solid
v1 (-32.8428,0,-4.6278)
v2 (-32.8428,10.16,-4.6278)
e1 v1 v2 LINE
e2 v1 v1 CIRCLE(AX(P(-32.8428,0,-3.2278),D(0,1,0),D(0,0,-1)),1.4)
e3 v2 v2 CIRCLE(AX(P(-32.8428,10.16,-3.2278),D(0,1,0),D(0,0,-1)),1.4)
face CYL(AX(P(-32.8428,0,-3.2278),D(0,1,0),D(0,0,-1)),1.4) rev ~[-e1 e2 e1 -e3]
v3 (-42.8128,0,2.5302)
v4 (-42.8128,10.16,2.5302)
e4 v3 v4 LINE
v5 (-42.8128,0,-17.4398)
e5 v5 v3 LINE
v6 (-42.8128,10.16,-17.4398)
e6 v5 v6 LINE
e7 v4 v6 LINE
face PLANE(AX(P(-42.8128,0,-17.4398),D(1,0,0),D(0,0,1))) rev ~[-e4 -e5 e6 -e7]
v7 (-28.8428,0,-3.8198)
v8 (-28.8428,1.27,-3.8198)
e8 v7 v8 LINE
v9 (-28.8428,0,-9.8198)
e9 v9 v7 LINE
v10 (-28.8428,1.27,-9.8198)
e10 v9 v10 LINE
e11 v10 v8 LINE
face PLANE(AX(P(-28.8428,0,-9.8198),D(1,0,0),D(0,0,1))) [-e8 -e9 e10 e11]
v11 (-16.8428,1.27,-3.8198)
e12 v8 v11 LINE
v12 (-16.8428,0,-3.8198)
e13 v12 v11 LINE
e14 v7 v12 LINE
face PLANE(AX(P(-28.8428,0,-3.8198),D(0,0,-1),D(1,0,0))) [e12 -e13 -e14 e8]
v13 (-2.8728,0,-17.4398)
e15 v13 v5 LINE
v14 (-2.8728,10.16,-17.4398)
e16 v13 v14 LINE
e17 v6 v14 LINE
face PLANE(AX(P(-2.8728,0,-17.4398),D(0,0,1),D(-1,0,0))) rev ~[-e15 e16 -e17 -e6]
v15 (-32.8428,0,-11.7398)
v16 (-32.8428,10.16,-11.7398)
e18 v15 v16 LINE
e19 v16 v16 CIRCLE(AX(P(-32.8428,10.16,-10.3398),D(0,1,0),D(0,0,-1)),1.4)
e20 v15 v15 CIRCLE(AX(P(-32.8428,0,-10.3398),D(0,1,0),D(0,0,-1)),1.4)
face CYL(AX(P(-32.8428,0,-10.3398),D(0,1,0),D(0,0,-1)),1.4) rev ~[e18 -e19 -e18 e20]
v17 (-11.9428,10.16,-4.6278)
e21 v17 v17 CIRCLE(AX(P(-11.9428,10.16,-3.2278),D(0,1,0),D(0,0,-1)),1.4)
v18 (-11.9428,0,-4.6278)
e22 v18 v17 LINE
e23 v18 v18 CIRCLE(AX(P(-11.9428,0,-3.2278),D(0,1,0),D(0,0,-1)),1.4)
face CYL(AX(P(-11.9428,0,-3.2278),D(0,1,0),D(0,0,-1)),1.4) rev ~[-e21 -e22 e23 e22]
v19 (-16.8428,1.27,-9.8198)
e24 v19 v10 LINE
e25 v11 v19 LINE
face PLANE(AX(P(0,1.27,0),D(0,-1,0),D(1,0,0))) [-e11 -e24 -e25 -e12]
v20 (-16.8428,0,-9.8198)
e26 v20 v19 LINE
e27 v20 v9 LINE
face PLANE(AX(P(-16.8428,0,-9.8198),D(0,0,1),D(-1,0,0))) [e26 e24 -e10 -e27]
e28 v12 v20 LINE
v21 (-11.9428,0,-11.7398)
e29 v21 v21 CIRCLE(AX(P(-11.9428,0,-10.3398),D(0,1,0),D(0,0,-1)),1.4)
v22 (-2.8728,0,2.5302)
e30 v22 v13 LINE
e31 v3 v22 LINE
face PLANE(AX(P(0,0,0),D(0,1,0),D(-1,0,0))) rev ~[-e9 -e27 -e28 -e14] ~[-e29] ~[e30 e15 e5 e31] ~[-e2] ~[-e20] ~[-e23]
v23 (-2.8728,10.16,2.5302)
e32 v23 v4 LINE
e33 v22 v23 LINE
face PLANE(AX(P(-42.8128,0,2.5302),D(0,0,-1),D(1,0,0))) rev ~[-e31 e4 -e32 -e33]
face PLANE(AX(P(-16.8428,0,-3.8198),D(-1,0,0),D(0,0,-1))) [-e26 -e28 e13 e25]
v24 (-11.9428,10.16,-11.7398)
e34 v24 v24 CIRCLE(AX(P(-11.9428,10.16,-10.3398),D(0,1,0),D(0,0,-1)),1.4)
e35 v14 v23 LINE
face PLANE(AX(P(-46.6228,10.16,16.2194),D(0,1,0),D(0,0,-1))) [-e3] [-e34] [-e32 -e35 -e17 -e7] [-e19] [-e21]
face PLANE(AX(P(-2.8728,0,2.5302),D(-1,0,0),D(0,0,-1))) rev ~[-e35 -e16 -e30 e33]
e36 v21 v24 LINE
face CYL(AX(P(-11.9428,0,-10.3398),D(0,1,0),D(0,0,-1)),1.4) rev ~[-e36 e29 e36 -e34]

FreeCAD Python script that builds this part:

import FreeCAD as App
import Part
import Sketcher
Q = App.Units.Quantity


def add_polygon(sketch, points):
    """Adds a closed chain of lines whose ends are joined by coincident constraints."""
    first, n = sketch.GeometryCount, len(points)
    for a, b in zip(points, points[1:] + points[:1]):
        sketch.addGeometry(Part.LineSegment(App.Vector(*a, 0), App.Vector(*b, 0)), False)
    for i in range(n):
        sketch.addConstraint(Sketcher.Constraint("Coincident", first + i, 2, first + (i + 1) % n, 1))

doc = App.newDocument("Part")
body = doc.addObject("PartDesign::Body", "Body")

# Sketch on XZ plane
sketch1 = body.newObject("Sketcher::SketchObject", "Sketch")
sketch1.AttachmentSupport = (doc.getObject("XZ_Plane"), [""])
sketch1.MapMode = "FlatFace"
add_polygon(sketch1, [(-47, -54), (-47, 35), (74, 35), (74, -54)])  # lines 0-3
sketch1.addConstraint(Sketcher.Constraint("Vertical", 0))
sketch1.addConstraint(Sketcher.Constraint("Horizontal", 1))
sketch1.addConstraint(Sketcher.Constraint("Vertical", 2))
sketch1.addConstraint(Sketcher.Constraint("Horizontal", 3))
sketch1.addConstraint(Sketcher.Constraint("DistanceY", 0, 1, 0, 2, Q("3.5 in")))
sketch1.addConstraint(Sketcher.Constraint("DistanceX", 1, 1, 1, 2, Q("4.75 in")))
sketch1.addConstraint(Sketcher.Constraint("DistanceY", -1, 1, 0, 2, Q("1.3634 in")))
sketch1.addConstraint(Sketcher.Constraint("DistanceX", 0, 2, -1, 1, 46.6228))
pad1 = body.newObject("PartDesign::Pad", "Pad")
pad1.Profile = sketch1
pad1.Length = Q("0.5 in")
pad1.Reversed = True

# Sketch on XZ plane
sketch2 = body.newObject("Sketcher::SketchObject", "Sketch001")
sketch2.AttachmentSupport = (doc.getObject("XZ_Plane"), [""])
sketch2.MapMode = "FlatFace"
sketch2.AttachmentOffset = App.Placement(App.Vector(0, 0, -0.5 * 25.4), App.Rotation())
sketch2.addGeometry(Part.Circle(App.Vector(6.7, 29.6, 0), App.Vector(0, 0, 1), 2.4), False)
sketch2.addGeometry(Part.Circle(App.Vector(51.2, 29.6, 0), App.Vector(0, 0, 1), 2.4), False)
sketch2.addConstraint(Sketcher.Constraint("Equal", 0, 1))
sketch2.addConstraint(Sketcher.Constraint("Horizontal", 0, 3, 1, 3))
sketch2.addConstraint(Sketcher.Constraint("Diameter", 0, Q("0.19 in")))
sketch2.addConstraint(Sketcher.Constraint("DistanceX", 0, 3, 1, 3, Q("1.75 in")))
sketch2.addConstraint(Sketcher.Constraint("DistanceY", -1, 1, 0, 3, Q("1.1634 in")))
sketch2.addConstraint(Sketcher.Constraint("DistanceX", -1, 1, 0, 3, 6.7172))
doc.recompute()
hole = body.newObject("PartDesign::Hole", "Hole")
hole.Profile = sketch2
hole.ThreadType = "None"
hole.Diameter = Q("0.19 in")
hole.DepthType = "Dimension"
hole.Depth = Q("1 in")
hole.DrillPoint = "Angled"
hole.DrillPointAngle = 118
hole.HoleCutType = "Countersink"
hole.HoleCutDiameter = Q("0.375 in")
hole.HoleCutCountersinkAngle = 82
hole.Reversed = True

# Sketch on XZ plane
sketch3 = body.newObject("Sketcher::SketchObject", "Sketch002")
sketch3.AttachmentSupport = (doc.getObject("XZ_Plane"), [""])
sketch3.MapMode = "FlatFace"
sketch3.AttachmentOffset = App.Placement(App.Vector(0, 0, -0.5 * 25.4), App.Rotation())
sketch3.addGeometry(Part.Circle(App.Vector(6.7, -14.3, 0), App.Vector(0, 0, 1), 2.4), False)
sketch3.addGeometry(Part.Circle(App.Vector(51.2, -14.3, 0), App.Vector(0, 0, 1), 2.4), False)
sketch3.addConstraint(Sketcher.Constraint("Equal", 0, 1))
sketch3.addConstraint(Sketcher.Constraint("Horizontal", 0, 3, 1, 3))
sketch3.addConstraint(Sketcher.Constraint("Diameter", 0, Q("0.19 in")))
sketch3.addConstraint(Sketcher.Constraint("DistanceX", 0, 3, 1, 3, Q("1.75 in")))
sketch3.addConstraint(Sketcher.Constraint("DistanceY", 0, 3, -1, 1, Q("0.5616 in")))
sketch3.addConstraint(Sketcher.Constraint("DistanceX", -1, 1, 0, 3, 6.7172))
doc.recompute()
hole2 = body.newObject("PartDesign::Hole", "Hole001")
hole2.Profile = sketch3
hole2.ThreadType = "None"
hole2.Diameter = Q("0.19 in")
hole2.DepthType = "ThroughAll"
hole2.HoleCutType = "Countersink"
hole2.HoleCutDiameter = Q("0.375 in")
hole2.HoleCutCountersinkAngle = 82
hole2.Reversed = True

# Sketch on XZ plane
sketch4 = body.newObject("Sketcher::SketchObject", "Sketch003")
sketch4.AttachmentSupport = (doc.getObject("XZ_Plane"), [""])
sketch4.MapMode = "FlatFace"
add_polygon(sketch4, [(-17, 29), (-29, 29), (-29, 23), (-17, 23)])  # lines 0-3
add_polygon(sketch4, [(-17, -4), (-29, -4), (-29, -10), (-17, -10)])  # lines 4-7
sketch4.addConstraint(Sketcher.Constraint("Horizontal", 0))
sketch4.addConstraint(Sketcher.Constraint("Vertical", 1))
sketch4.addConstraint(Sketcher.Constraint("Horizontal", 2))
sketch4.addConstraint(Sketcher.Constraint("Vertical", 3))
sketch4.addConstraint(Sketcher.Constraint("Horizontal", 4))
sketch4.addConstraint(Sketcher.Constraint("Vertical", 5))
sketch4.addConstraint(Sketcher.Constraint("Horizontal", 6))
sketch4.addConstraint(Sketcher.Constraint("Vertical", 7))
sketch4.addConstraint(Sketcher.Constraint("Vertical", 1, 2, 4, 2))
sketch4.addConstraint(Sketcher.Constraint("Vertical", 3, 2, 6, 2))
sketch4.addConstraint(Sketcher.Constraint("Equal", 3, 5))
sketch4.addConstraint(Sketcher.Constraint("DistanceY", 1, 2, 1, 1, 6.0))
sketch4.addConstraint(Sketcher.Constraint("DistanceY", 4, 2, 0, 2, Q("1.3 in")))
sketch4.addConstraint(Sketcher.Constraint("DistanceX", 0, 2, 0, 1, 12.0))
sketch4.addConstraint(Sketcher.Constraint("DistanceY", -1, 1, 1, 2, Q("0.9134 in")))
sketch4.addConstraint(Sketcher.Constraint("DistanceX", 2, 2, -1, 1, Q("0.6631 in")))
pocket1 = body.newObject("PartDesign::Pocket", "Pocket")
pocket1.Profile = sketch4
pocket1.Length = Q("0.05 in")

# Sketch on XZ plane
sketch5 = body.newObject("Sketcher::SketchObject", "Sketch004")
sketch5.AttachmentSupport = (doc.getObject("XZ_Plane"), [""])
sketch5.MapMode = "FlatFace"
sketch5.addGeometry(Part.Circle(App.Vector(-32.8, -10.3, 0), App.Vector(0, 0, 1), 1.4), False)
sketch5.addGeometry(Part.Circle(App.Vector(-32.8, -3.2, 0), App.Vector(0, 0, 1), 1.4), False)
sketch5.addGeometry(Part.Circle(App.Vector(-32.8, 22.9, 0), App.Vector(0, 0, 1), 1.4), False)
sketch5.addGeometry(Part.Circle(App.Vector(-32.8, 30.1, 0), App.Vector(0, 0, 1), 1.4), False)
sketch5.addGeometry(Part.Circle(App.Vector(-11.9, -10.3, 0), App.Vector(0, 0, 1), 1.4), False)
sketch5.addGeometry(Part.Circle(App.Vector(-11.9, -3.2, 0), App.Vector(0, 0, 1), 1.4), False)
sketch5.addGeometry(Part.Circle(App.Vector(-11.9, 22.9, 0), App.Vector(0, 0, 1), 1.4), False)
sketch5.addGeometry(Part.Circle(App.Vector(-11.9, 30.1, 0), App.Vector(0, 0, 1), 1.4), False)
sketch5.addConstraint(Sketcher.Constraint("Equal", 0, 1))
sketch5.addConstraint(Sketcher.Constraint("Equal", 1, 2))
sketch5.addConstraint(Sketcher.Constraint("Equal", 2, 3))
sketch5.addConstraint(Sketcher.Constraint("Equal", 3, 4))
sketch5.addConstraint(Sketcher.Constraint("Equal", 4, 5))
sketch5.addConstraint(Sketcher.Constraint("Equal", 5, 6))
sketch5.addConstraint(Sketcher.Constraint("Equal", 6, 7))
sketch5.addConstraint(Sketcher.Constraint("Horizontal", 0, 3, 4, 3))
sketch5.addConstraint(Sketcher.Constraint("Horizontal", 1, 3, 5, 3))
sketch5.addConstraint(Sketcher.Constraint("Horizontal", 2, 3, 6, 3))
sketch5.addConstraint(Sketcher.Constraint("Horizontal", 3, 3, 7, 3))
sketch5.addConstraint(Sketcher.Constraint("Vertical", 0, 3, 1, 3))
sketch5.addConstraint(Sketcher.Constraint("Vertical", 1, 3, 2, 3))
sketch5.addConstraint(Sketcher.Constraint("Vertical", 2, 3, 3, 3))
sketch5.addConstraint(Sketcher.Constraint("Vertical", 4, 3, 5, 3))
sketch5.addConstraint(Sketcher.Constraint("Vertical", 5, 3, 6, 3))
sketch5.addConstraint(Sketcher.Constraint("Vertical", 6, 3, 7, 3))
sketch5.addConstraint(Sketcher.Constraint("Diameter", 0, 2.8))
sketch5.addConstraint(Sketcher.Constraint("DistanceY", 0, 3, 1, 3, Q("0.28 in")))
sketch5.addConstraint(Sketcher.Constraint("DistanceY", 2, 3, 3, 3, Q("0.28 in")))
sketch5.addConstraint(Sketcher.Constraint("DistanceY", -1, 1, 2, 3, Q("0.9034 in")))
sketch5.addConstraint(Sketcher.Constraint("DistanceX", 4, 3, -1, 1, Q("0.4702 in")))
sketch5.addConstraint(Sketcher.Constraint("DistanceX", 0, 3, -1, 1, 32.8428))
sketch5.addConstraint(Sketcher.Constraint("DistanceY", 0, 3, -1, 1, 10.3398))
doc.recompute()
hole3 = body.newObject("PartDesign::Hole", "Hole002")
hole3.Profile = sketch5
hole3.ThreadType = "None"
hole3.Diameter = 2.8
hole3.DepthType = "ThroughAll"

# Sketch on XZ plane
sketch6 = body.newObject("Sketcher::SketchObject", "Sketch005")
sketch6.AttachmentSupport = (doc.getObject("XZ_Plane"), [""])
sketch6.MapMode = "FlatFace"
sketch6.AttachmentOffset = App.Placement(App.Vector(0, 0, -0.5 * 25.4), App.Rotation())
sketch6.addGeometry(Part.Circle(App.Vector(6.7, -14.3, 0), App.Vector(0, 0, 1), 3.4), False)
sketch6.addGeometry(Part.Circle(App.Vector(6.7, -14.3, 0), App.Vector(0, 0, 1), 2.4), False)
sketch6.addGeometry(Part.Circle(App.Vector(6.7, 29.6, 0), App.Vector(0, 0, 1), 3.4), False)
sketch6.addGeometry(Part.Circle(App.Vector(6.7, 29.6, 0), App.Vector(0, 0, 1), 2.4), False)
sketch6.addGeometry(Part.Circle(App.Vector(51.2, 29.6, 0), App.Vector(0, 0, 1), 3.4), False)
sketch6.addGeometry(Part.Circle(App.Vector(51.2, 29.6, 0), App.Vector(0, 0, 1), 2.4), False)
sketch6.addGeometry(Part.Circle(App.Vector(51.2, -14.3, 0), App.Vector(0, 0, 1), 3.4), False)
sketch6.addGeometry(Part.Circle(App.Vector(51.2, -14.3, 0), App.Vector(0, 0, 1), 2.4), False)
sketch6.addConstraint(Sketcher.Constraint("Coincident", 1, 3, 0, 3))
sketch6.addConstraint(Sketcher.Constraint("Coincident", 3, 3, 2, 3))
sketch6.addConstraint(Sketcher.Constraint("Coincident", 5, 3, 4, 3))
sketch6.addConstraint(Sketcher.Constraint("Coincident", 7, 3, 6, 3))
sketch6.addConstraint(Sketcher.Constraint("Equal", 0, 2))
sketch6.addConstraint(Sketcher.Constraint("Equal", 1, 3))
sketch6.addConstraint(Sketcher.Constraint("Equal", 2, 4))
sketch6.addConstraint(Sketcher.Constraint("Equal", 3, 5))
sketch6.addConstraint(Sketcher.Constraint("Equal", 4, 6))
sketch6.addConstraint(Sketcher.Constraint("Equal", 5, 7))
sketch6.addConstraint(Sketcher.Constraint("Horizontal", 3, 3, 4, 3))
sketch6.addConstraint(Sketcher.Constraint("Horizontal", 1, 3, 6, 3))
sketch6.addConstraint(Sketcher.Constraint("Vertical", 1, 3, 2, 3))
sketch6.addConstraint(Sketcher.Constraint("Vertical", 5, 3, 6, 3))
sketch6.addConstraint(Sketcher.Constraint("Diameter", 0, Q("0.265622 in")))
sketch6.addConstraint(Sketcher.Constraint("Diameter", 1, Q("0.19 in")))
sketch6.addConstraint(Sketcher.Constraint("DistanceX", 2, 3, 4, 3, Q("1.75 in")))
sketch6.addConstraint(Sketcher.Constraint("DistanceY", 0, 3, 2, 3, Q("1.725 in")))
sketch6.addConstraint(Sketcher.Constraint("DistanceY", 0, 3, -1, 1, Q("0.5616 in")))
sketch6.addConstraint(Sketcher.Constraint("DistanceX", -1, 1, 0, 3, 6.7172))
pocket2 = body.newObject("PartDesign::Pocket", "Pocket001")
pocket2.Profile = sketch6
pocket2.Length = Q("0.35 in")
pocket2.Reversed = True

# Sketch on XZ plane
sketch7 = body.newObject("Sketcher::SketchObject", "Sketch006")
sketch7.AttachmentSupport = (doc.getObject("XZ_Plane"), [""])
sketch7.MapMode = "FlatFace"
add_polygon(sketch7, [(91, -21), (-64, -21), (-64, -73), (91, -73)])  # lines 0-3
sketch7.addConstraint(Sketcher.Constraint("Horizontal", 0))
sketch7.addConstraint(Sketcher.Constraint("Vertical", 1))
sketch7.addConstraint(Sketcher.Constraint("Horizontal", 2))
sketch7.addConstraint(Sketcher.Constraint("Vertical", 3))
sketch7.addConstraint(Sketcher.Constraint("DistanceY", 1, 2, 1, 1, Q("2.0344 in")))
sketch7.addConstraint(Sketcher.Constraint("DistanceY", 1, 2, -1, 1, Q("2.871 in")))
sketch7.addConstraint(Sketcher.Constraint("DistanceX", 0, 2, 0, 1, 155.5678))
sketch7.addConstraint(Sketcher.Constraint("DistanceX", 0, 2, -1, 1, Q("2.5387 in")))
pocket3 = body.newObject("PartDesign::Pocket", "Pocket002")
pocket3.Profile = sketch7
pocket3.Length = Q("1 in")

# Sketch on XZ plane
sketch8 = body.newObject("Sketcher::SketchObject", "Sketch007")
sketch8.AttachmentSupport = (doc.getObject("XZ_Plane"), [""])
sketch8.MapMode = "FlatFace"
sketch8.AttachmentOffset = App.Placement(App.Vector(0, 0, -0.5 * 25.4), App.Rotation())
add_polygon(sketch8, [(85, -35), (1, -35), (1, 6), (-61, 6), (-61, 40), (1, 40), (1, 45), (85, 45)])  # lines 0-7
sketch8.addConstraint(Sketcher.Constraint("Horizontal", 0))
sketch8.addConstraint(Sketcher.Constraint("Vertical", 1))
sketch8.addConstraint(Sketcher.Constraint("Horizontal", 2))
sketch8.addConstraint(Sketcher.Constraint("Vertical", 3))
sketch8.addConstraint(Sketcher.Constraint("Horizontal", 4))
sketch8.addConstraint(Sketcher.Constraint("Vertical", 5))
sketch8.addConstraint(Sketcher.Constraint("Horizontal", 6))
sketch8.addConstraint(Sketcher.Constraint("Vertical", 7))
sketch8.addConstraint(Sketcher.Constraint("Vertical", 1, 2, 4, 2))
sketch8.addConstraint(Sketcher.Constraint("DistanceX", 2, 2, 2, 1, Q("2.4201 in")))
sketch8.addConstraint(Sketcher.Constraint("DistanceX", 0, 2, 0, 1, 83.7023))
sketch8.addConstraint(Sketcher.Constraint("DistanceY", 1, 1, 1, 2, 41.2297))
sketch8.addConstraint(Sketcher.Constraint("DistanceY", 3, 1, 3, 2, 33.4128))
sketch8.addConstraint(Sketcher.Constraint("DistanceY", 5, 1, 5, 2, 5.3362))
sketch8.addConstraint(Sketcher.Constraint("DistanceX", -1, 1, 0, 2, Q("0.0369 in")))
sketch8.addConstraint(Sketcher.Constraint("DistanceY", 0, 2, -1, 1, Q("1.3736 in")))
pocket4 = body.newObject("PartDesign::Pocket", "Pocket003")
pocket4.Profile = sketch8
pocket4.Length = Q("1 in")
pocket4.Reversed = True

# Sketch on YZ plane
sketch9 = body.newObject("Sketcher::SketchObject", "Sketch008")
sketch9.AttachmentSupport = (doc.getObject("YZ_Plane"), [""])
sketch9.MapMode = "FlatFace"
sketch9.AttachmentOffset = App.Placement(App.Vector(0, 0, -46.6228), App.Rotation())
add_polygon(sketch9, [(10, -39), (10, 16), (19, 16), (19, -39)])  # lines 0-3
sketch9.addConstraint(Sketcher.Constraint("Vertical", 0))
sketch9.addConstraint(Sketcher.Constraint("Horizontal", 1))
sketch9.addConstraint(Sketcher.Constraint("Vertical", 2))
sketch9.addConstraint(Sketcher.Constraint("Horizontal", 3))
sketch9.addConstraint(Sketcher.Constraint("DistanceX", -1, 1, 0, 2, Q("0.4 in")))
sketch9.addConstraint(Sketcher.Constraint("DistanceX", 1, 1, 1, 2, Q("0.3671 in")))
sketch9.addConstraint(Sketcher.Constraint("DistanceY", 0, 1, 0, 2, 55.579))
sketch9.addConstraint(Sketcher.Constraint("DistanceY", 2, 2, -1, 1, Q("1.5496 in")))
pocket5 = body.newObject("PartDesign::Pocket", "Pocket004")
pocket5.Profile = sketch9
pocket5.Length = Q("2.1875 in")
pocket5.Reversed = True

# Sketch on XZ plane
sketch10 = body.newObject("Sketcher::SketchObject", "Sketch009")
sketch10.AttachmentSupport = (doc.getObject("XZ_Plane"), [""])
sketch10.MapMode = "FlatFace"
add_polygon(sketch10, [(-47, -21), (1, -21), (1, 6), (-47, 6)])  # lines 0-3
add_polygon(sketch10, [(-43, -17), (-43, 3), (-3, 3), (-3, -17)])  # lines 4-7
sketch10.addConstraint(Sketcher.Constraint("Horizontal", 0))
sketch10.addConstraint(Sketcher.Constraint("Vertical", 1))
sketch10.addConstraint(Sketcher.Constraint("Horizontal", 2))
sketch10.addConstraint(Sketcher.Constraint("Vertical", 3))
sketch10.addConstraint(Sketcher.Constraint("Vertical", 4))
sketch10.addConstraint(Sketcher.Constraint("Horizontal", 5))
sketch10.addConstraint(Sketcher.Constraint("Vertical", 6))
sketch10.addConstraint(Sketcher.Constraint("Horizontal", 7))
sketch10.addConstraint(Sketcher.Constraint("DistanceX", 2, 2, 4, 2, Q("0.15 in")))
sketch10.addConstraint(Sketcher.Constraint("DistanceY", 4, 2, 2, 2, Q("0.15 in")))
sketch10.addConstraint(Sketcher.Constraint("DistanceX", 5, 2, 1, 2, Q("0.15 in")))
sketch10.addConstraint(Sketcher.Constraint("DistanceY", 0, 2, 6, 2, Q("0.15 in")))
sketch10.addConstraint(Sketcher.Constraint("DistanceX", 0, 1, 0, 2, 47.56))
sketch10.addConstraint(Sketcher.Constraint("DistanceY", 1, 1, 1, 2, 27.59))
sketch10.addConstraint(Sketcher.Constraint("DistanceX", -1, 1, 0, 2, Q("0.0369 in")))
sketch10.addConstraint(Sketcher.Constraint("DistanceY", 0, 2, -1, 1, Q("0.8366 in")))
pocket6 = body.newObject("PartDesign::Pocket", "Pocket005")
pocket6.Profile = sketch10
pocket6.Length = Q("2.1875 in")

doc.recompute()
